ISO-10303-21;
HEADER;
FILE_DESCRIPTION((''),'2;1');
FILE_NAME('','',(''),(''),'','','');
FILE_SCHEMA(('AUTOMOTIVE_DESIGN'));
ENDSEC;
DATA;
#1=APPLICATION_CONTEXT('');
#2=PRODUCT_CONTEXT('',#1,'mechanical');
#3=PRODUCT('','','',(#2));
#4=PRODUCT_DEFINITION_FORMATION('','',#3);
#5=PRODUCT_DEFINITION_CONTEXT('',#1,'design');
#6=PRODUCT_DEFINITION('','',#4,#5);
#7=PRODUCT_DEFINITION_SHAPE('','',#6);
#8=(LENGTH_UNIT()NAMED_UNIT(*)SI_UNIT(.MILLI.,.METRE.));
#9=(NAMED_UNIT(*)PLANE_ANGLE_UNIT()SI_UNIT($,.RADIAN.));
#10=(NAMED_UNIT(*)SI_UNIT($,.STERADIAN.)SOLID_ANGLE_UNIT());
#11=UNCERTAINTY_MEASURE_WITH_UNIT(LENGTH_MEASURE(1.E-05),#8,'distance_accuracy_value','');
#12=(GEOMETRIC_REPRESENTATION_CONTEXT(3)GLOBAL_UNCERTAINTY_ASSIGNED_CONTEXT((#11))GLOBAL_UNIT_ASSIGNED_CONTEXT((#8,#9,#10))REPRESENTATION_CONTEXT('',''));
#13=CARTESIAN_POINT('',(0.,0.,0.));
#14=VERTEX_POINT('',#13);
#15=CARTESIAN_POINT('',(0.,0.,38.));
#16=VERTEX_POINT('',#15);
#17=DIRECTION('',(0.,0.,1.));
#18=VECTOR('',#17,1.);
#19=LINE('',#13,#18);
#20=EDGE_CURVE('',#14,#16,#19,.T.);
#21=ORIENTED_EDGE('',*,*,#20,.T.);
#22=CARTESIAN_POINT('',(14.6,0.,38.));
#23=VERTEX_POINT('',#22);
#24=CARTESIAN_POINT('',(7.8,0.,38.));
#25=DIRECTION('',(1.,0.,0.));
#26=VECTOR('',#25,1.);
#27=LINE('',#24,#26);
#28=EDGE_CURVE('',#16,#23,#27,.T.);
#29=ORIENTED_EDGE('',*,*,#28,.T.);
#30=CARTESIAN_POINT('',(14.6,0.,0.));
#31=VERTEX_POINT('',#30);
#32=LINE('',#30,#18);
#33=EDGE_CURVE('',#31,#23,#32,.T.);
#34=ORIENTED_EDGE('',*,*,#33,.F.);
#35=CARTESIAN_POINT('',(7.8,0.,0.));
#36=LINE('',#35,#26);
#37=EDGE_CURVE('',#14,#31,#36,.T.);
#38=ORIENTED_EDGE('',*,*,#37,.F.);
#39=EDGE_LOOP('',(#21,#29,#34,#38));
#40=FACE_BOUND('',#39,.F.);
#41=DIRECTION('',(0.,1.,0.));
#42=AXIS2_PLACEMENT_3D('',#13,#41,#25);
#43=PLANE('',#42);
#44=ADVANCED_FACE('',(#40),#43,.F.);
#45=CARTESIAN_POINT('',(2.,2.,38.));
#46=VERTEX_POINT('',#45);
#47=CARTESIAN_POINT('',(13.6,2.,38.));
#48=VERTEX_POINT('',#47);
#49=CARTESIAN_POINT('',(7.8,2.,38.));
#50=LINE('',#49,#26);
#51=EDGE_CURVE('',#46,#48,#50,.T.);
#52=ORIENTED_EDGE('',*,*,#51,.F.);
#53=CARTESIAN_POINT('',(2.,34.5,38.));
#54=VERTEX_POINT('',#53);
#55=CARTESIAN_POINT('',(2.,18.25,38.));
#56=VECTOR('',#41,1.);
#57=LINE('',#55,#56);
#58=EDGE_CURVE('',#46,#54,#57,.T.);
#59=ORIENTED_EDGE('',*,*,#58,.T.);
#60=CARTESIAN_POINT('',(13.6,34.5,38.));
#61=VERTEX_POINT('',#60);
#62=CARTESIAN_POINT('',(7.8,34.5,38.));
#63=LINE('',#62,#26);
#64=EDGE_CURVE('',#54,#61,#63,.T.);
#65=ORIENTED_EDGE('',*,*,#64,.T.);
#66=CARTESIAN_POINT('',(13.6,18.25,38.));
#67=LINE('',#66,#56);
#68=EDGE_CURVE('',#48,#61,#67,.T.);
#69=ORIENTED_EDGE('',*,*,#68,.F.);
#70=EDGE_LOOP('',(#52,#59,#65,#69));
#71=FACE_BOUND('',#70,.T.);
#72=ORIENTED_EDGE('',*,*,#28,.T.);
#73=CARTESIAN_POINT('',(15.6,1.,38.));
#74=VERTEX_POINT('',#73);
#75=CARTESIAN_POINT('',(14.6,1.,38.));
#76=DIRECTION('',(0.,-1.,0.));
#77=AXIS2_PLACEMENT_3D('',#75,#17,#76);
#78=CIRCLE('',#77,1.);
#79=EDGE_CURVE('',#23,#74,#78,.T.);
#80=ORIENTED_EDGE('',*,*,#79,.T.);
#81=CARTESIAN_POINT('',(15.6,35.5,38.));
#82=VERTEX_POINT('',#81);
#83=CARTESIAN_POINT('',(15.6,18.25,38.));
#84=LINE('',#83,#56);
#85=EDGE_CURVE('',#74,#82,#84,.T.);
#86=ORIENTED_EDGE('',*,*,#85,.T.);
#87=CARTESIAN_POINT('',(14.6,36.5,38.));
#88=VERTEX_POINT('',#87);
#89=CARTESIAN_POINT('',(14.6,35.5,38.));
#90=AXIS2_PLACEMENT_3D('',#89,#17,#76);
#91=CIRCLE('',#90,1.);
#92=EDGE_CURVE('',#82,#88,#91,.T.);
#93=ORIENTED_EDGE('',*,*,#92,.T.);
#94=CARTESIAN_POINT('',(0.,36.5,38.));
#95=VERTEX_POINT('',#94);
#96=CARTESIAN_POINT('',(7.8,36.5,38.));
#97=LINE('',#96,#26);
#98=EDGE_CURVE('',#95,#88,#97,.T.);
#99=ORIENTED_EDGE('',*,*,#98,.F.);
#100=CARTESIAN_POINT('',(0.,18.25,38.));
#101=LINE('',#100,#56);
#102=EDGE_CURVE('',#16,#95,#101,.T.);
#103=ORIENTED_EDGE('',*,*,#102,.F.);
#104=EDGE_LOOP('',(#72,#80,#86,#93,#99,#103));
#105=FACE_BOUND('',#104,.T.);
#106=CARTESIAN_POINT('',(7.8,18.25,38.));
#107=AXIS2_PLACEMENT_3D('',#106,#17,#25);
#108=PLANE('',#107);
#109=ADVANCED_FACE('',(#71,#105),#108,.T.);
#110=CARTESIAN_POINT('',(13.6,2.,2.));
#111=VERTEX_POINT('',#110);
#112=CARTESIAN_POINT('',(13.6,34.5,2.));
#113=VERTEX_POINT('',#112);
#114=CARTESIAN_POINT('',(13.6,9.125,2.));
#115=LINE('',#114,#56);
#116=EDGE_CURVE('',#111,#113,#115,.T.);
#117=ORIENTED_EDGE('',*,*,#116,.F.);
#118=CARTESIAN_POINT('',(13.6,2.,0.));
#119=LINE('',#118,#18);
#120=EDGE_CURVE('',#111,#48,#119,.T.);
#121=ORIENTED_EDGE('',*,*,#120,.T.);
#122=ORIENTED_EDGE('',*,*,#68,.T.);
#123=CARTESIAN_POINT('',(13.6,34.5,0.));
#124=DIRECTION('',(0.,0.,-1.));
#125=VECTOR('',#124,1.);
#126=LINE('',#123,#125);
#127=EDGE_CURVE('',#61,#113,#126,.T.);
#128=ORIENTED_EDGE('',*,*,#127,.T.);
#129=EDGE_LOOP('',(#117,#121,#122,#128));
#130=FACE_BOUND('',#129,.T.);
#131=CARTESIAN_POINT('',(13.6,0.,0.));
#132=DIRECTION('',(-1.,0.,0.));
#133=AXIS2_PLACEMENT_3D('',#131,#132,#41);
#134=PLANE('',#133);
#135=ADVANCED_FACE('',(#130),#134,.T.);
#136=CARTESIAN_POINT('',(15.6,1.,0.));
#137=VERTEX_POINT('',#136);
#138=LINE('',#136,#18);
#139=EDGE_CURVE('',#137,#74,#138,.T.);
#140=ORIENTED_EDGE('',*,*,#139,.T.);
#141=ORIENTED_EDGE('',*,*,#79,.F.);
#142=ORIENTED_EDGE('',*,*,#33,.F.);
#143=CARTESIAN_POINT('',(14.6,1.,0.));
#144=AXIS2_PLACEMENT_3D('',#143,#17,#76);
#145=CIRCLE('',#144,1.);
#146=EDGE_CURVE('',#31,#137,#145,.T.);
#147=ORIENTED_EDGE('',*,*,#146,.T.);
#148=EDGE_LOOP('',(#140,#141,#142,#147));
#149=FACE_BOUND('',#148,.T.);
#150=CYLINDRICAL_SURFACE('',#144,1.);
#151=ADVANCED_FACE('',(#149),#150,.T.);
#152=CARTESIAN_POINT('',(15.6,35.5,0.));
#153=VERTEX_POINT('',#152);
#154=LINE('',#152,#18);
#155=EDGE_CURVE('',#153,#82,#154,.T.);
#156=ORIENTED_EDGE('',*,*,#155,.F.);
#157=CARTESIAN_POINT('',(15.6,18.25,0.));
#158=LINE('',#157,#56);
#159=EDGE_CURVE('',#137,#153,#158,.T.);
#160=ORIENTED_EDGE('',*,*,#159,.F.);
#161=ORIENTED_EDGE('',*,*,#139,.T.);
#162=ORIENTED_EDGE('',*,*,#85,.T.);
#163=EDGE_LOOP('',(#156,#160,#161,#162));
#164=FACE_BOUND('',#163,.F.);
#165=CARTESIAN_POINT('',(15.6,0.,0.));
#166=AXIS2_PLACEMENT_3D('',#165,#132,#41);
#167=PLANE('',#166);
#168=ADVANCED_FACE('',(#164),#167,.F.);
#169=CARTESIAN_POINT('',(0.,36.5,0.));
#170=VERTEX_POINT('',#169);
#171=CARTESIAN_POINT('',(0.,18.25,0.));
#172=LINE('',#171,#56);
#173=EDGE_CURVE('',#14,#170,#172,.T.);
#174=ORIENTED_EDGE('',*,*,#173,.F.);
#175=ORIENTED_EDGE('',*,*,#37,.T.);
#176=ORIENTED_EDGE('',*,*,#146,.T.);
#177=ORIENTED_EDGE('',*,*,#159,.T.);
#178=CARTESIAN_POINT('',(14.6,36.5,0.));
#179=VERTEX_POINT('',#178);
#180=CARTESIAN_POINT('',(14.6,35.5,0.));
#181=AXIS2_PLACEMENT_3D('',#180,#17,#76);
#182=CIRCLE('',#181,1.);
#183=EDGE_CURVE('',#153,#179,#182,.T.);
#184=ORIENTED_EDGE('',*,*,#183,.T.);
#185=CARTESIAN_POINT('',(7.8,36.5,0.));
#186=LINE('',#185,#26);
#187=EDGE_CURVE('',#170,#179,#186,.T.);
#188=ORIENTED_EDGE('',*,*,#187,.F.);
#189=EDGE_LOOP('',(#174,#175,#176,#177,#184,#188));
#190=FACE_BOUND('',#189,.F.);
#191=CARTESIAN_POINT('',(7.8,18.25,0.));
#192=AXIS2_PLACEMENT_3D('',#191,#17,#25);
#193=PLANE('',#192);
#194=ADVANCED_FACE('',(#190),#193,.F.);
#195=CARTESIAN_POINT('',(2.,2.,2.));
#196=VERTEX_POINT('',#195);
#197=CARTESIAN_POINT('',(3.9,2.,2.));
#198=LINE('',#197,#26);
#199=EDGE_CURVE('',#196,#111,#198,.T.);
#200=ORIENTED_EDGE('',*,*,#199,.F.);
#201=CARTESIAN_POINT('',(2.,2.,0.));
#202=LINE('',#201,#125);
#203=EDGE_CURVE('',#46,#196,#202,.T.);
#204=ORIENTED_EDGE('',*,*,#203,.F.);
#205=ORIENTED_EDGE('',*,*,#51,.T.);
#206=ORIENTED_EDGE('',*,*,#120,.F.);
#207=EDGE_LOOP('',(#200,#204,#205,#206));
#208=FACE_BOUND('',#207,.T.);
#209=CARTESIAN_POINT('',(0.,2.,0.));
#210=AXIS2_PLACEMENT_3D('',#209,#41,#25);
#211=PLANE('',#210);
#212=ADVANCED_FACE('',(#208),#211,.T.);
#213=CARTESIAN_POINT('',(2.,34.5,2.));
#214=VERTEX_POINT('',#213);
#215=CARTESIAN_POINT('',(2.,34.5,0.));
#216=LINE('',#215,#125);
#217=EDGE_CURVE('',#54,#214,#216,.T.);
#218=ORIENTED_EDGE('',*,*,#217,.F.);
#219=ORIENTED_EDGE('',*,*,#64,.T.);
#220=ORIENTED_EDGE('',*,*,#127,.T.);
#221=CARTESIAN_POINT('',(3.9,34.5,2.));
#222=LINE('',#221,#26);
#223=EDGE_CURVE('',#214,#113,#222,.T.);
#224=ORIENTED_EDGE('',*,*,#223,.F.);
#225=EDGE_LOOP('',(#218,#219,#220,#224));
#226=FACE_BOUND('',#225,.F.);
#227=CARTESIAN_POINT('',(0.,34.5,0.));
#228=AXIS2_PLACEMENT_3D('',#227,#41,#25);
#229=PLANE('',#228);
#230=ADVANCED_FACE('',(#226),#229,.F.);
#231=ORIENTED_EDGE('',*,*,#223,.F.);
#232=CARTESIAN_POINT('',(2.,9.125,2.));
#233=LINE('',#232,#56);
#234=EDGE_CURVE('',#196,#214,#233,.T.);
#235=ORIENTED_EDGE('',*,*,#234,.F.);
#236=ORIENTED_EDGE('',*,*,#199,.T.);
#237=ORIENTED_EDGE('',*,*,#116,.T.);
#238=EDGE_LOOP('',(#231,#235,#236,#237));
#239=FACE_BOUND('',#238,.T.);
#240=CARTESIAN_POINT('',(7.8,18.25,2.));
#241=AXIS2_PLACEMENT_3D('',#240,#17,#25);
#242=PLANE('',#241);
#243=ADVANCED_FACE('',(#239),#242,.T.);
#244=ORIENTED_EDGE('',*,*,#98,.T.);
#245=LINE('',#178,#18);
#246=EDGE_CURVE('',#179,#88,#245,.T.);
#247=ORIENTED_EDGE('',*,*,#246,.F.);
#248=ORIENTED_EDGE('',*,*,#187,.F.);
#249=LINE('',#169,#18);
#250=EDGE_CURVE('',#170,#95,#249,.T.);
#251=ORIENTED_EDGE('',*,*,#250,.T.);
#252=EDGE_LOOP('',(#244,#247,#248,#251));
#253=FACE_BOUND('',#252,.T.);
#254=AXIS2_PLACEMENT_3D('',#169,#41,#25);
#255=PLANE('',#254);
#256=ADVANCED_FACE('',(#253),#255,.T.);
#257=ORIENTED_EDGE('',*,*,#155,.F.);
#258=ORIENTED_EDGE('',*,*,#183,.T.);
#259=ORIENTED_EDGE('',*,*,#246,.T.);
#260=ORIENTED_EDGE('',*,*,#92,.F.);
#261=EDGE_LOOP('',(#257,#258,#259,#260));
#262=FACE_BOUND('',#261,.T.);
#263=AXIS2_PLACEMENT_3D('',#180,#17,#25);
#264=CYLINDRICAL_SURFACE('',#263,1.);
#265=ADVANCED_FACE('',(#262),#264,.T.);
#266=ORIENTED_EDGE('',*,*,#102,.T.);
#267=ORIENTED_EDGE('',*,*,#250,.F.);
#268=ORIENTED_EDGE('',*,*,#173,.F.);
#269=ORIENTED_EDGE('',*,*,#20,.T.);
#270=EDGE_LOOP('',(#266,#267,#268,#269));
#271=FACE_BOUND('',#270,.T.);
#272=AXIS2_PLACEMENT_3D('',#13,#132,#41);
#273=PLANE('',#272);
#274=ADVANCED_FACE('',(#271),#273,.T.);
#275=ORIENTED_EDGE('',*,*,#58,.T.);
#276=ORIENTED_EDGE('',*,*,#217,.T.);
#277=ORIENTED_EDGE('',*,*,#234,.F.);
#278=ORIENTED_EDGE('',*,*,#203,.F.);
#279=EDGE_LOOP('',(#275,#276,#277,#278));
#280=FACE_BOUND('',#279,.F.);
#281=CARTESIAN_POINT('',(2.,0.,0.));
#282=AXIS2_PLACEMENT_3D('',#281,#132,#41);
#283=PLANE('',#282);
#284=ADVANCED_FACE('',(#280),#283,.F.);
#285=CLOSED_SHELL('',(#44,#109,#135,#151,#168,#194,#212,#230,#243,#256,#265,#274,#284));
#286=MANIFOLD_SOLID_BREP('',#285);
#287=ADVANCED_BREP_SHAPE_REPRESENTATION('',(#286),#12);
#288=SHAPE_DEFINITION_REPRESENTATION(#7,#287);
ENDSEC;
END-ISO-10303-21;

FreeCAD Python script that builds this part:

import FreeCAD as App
import Part
import Sketcher

V = App.Vector
Q = App.Units.Quantity


def edges_at(feature, points):
    """Names of the edges that pass closest to the given points."""
    edges = feature.Shape.Edges
    near = lambda p: min(range(len(edges)), key=lambda i: edges[i].distToShape(Part.Vertex(*p))[0])
    return sorted({f"Edge{near(p) + 1}" for p in points})


def faces_at(feature, points):
    """Names of the faces that lie closest to the given points."""
    faces = feature.Shape.Faces
    near = lambda p: min(range(len(faces)), key=lambda i: faces[i].distToShape(Part.Vertex(*p))[0])
    return sorted({f"Face{near(p) + 1}" for p in points})

doc = App.newDocument("Part")
body = doc.addObject("PartDesign::Body", "Body")

sketch1 = body.newObject("Sketcher::SketchObject", "Sketch")
sketch1.AttachmentSupport = (doc.getObject("XY_Plane"), [""])
sketch1.MapMode = "FlatFace"
sketch1.addGeometry([
    Part.LineSegment(V(0, 36.5, 0), V(0, 0, 0)),
    Part.LineSegment(V(0, 0, 0), V(15.6, 0, 0)),
    Part.LineSegment(V(15.6, 0, 0), V(15.6, 36.5, 0)),
    Part.LineSegment(V(15.6, 36.5, 0), V(0, 36.5, 0)),
], False)
sketch1.addConstraint([
    Sketcher.Constraint("Coincident", 0, 2, 1, 1),
    Sketcher.Constraint("Coincident", 1, 2, 2, 1),
    Sketcher.Constraint("Coincident", 2, 2, 3, 1),
    Sketcher.Constraint("Coincident", 3, 2, 0, 1),
    Sketcher.Constraint("Vertical", 0),
    Sketcher.Constraint("Horizontal", 1),
    Sketcher.Constraint("Vertical", 2),
    Sketcher.Constraint("Horizontal", 3),
    Sketcher.Constraint("Coincident", 0, 2, -1, 1),
    Sketcher.Constraint("DistanceX", 1, 1, 1, 2, Q("15.6 mm")),
    Sketcher.Constraint("DistanceY", 0, 2, 0, 1, Q("36.5 mm")),
])
pad1 = body.newObject("PartDesign::Pad", "Pad")
pad1.Profile = sketch1
pad1.Length = 38
doc.recompute()

thickness = body.newObject("PartDesign::Thickness", "Thickness")
thickness.Base = (pad1, faces_at(pad1, [(7.8, 18.25, 38)]))
thickness.Value = 2
thickness.Reversed = True
thickness.Join = "Arc"
doc.recompute()

fillet = body.newObject("PartDesign::Fillet", "Fillet")
fillet.Base = (thickness, edges_at(thickness, [(15.6, 0, 19), (15.6, 36.5, 19)]))
fillet.Radius = 1

doc.recompute()
